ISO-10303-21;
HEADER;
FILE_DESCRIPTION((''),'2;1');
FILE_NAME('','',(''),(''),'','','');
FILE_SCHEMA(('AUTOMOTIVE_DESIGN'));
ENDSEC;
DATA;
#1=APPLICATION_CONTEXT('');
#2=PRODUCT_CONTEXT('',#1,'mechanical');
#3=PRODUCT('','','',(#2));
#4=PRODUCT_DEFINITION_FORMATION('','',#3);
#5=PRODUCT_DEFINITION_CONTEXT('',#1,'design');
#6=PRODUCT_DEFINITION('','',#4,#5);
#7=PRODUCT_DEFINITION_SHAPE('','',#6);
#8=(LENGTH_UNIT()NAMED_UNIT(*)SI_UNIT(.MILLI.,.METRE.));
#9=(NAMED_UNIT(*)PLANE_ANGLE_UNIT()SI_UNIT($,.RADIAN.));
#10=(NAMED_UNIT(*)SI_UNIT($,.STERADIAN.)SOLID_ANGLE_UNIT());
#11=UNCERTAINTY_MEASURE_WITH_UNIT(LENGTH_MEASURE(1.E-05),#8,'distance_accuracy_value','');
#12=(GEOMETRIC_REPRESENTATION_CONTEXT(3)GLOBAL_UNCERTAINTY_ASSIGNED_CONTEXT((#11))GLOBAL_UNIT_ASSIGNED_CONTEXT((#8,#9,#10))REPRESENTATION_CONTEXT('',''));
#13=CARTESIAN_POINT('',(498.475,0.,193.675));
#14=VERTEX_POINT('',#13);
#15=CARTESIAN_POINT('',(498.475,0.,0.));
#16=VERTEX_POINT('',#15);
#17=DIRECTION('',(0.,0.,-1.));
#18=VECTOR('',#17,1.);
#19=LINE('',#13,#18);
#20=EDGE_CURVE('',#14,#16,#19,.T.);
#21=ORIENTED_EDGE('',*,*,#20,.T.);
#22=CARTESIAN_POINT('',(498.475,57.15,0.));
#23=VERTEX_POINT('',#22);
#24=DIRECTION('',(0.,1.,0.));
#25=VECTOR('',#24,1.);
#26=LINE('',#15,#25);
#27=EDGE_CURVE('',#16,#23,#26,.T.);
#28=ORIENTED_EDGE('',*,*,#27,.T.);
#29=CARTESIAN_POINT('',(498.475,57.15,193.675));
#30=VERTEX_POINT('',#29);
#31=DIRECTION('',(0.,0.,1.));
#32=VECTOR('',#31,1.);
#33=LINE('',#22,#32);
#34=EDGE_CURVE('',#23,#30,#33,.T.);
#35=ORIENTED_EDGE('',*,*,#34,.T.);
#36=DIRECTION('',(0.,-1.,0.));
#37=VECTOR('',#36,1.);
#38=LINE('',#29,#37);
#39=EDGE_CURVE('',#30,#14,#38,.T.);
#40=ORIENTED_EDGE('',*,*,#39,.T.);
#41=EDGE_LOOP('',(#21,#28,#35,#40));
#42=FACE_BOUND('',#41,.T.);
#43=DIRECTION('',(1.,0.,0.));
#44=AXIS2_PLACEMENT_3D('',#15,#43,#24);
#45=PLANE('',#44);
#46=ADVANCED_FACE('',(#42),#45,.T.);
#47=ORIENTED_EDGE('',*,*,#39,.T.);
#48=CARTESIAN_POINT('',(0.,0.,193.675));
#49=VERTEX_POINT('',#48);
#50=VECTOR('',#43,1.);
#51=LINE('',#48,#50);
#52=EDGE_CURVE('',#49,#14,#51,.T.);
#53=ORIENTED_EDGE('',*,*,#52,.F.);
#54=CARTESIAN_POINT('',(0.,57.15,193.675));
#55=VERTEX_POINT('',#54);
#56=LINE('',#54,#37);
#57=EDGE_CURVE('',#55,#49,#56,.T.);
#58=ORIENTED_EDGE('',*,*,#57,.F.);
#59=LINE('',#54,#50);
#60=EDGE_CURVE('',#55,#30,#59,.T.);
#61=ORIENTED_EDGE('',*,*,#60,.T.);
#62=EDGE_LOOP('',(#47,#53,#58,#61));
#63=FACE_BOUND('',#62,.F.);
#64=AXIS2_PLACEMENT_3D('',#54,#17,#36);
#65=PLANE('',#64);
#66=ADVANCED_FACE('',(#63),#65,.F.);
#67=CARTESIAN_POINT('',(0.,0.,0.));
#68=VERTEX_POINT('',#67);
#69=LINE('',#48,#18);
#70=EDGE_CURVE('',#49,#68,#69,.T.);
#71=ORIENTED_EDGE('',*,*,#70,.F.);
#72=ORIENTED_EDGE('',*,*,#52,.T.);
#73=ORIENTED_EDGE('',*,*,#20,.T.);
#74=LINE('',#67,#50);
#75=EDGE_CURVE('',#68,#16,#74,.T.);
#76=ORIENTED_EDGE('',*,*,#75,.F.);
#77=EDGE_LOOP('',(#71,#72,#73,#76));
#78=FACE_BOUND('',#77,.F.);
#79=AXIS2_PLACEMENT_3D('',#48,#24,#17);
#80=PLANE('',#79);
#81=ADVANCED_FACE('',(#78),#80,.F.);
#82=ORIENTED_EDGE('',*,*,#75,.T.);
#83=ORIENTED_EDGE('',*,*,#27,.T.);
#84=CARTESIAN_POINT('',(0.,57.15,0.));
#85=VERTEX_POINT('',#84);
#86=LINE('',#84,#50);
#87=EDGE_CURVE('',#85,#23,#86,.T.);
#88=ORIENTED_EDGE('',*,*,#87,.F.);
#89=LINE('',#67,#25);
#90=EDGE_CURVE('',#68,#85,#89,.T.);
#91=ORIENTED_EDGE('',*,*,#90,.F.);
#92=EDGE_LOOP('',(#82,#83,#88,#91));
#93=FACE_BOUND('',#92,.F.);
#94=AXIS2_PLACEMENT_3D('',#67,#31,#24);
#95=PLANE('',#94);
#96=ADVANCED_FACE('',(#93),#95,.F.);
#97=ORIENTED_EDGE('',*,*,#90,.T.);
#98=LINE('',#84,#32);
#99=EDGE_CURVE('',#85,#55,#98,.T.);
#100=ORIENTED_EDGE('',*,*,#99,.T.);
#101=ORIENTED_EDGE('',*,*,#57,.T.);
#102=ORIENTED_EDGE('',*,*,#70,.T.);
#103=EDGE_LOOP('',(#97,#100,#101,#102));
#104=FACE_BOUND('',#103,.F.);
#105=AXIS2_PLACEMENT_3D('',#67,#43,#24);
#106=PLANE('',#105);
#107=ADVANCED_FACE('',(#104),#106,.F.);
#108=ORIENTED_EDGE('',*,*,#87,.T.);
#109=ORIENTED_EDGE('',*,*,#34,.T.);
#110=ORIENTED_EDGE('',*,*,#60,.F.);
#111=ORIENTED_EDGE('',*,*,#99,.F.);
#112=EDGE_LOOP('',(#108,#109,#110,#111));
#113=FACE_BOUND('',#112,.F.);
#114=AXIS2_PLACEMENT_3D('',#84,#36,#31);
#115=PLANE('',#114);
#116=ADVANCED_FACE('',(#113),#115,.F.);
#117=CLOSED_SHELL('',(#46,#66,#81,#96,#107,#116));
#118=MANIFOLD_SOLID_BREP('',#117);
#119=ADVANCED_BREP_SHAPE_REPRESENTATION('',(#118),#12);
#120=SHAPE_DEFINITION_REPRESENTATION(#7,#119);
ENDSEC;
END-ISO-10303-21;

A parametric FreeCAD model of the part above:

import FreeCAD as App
import Part
import Sketcher
from FreeCAD import Vector
Q = App.Units.Quantity

doc = App.newDocument("Part")
body = doc.addObject("PartDesign::Body", "Body")

# Sketch on YZ plane
sketch1 = body.newObject("Sketcher::SketchObject", "Sketch")
sketch1.AttachmentSupport = (doc.getObject("YZ_Plane"), [""])
sketch1.MapMode = "FlatFace"
sketch1.addGeometry(Part.LineSegment(Vector(0, 194, 0), Vector(0, 0, 0)), False)
sketch1.addGeometry(Part.LineSegment(Vector(0, 0, 0), Vector(57, 0, 0)), False)
sketch1.addGeometry(Part.LineSegment(Vector(57, 0, 0), Vector(57, 194, 0)), False)
sketch1.addGeometry(Part.LineSegment(Vector(57, 194, 0), Vector(0, 194, 0)), False)
sketch1.addConstraint(Sketcher.Constraint("Coincident", 0, 2, 1, 1))
sketch1.addConstraint(Sketcher.Constraint("Coincident", 1, 2, 2, 1))
sketch1.addConstraint(Sketcher.Constraint("Coincident", 2, 2, 3, 1))
sketch1.addConstraint(Sketcher.Constraint("Coincident", 3, 2, 0, 1))
sketch1.addConstraint(Sketcher.Constraint("Vertical", 0))
sketch1.addConstraint(Sketcher.Constraint("Horizontal", 1))
sketch1.addConstraint(Sketcher.Constraint("Vertical", 2))
sketch1.addConstraint(Sketcher.Constraint("Horizontal", 3))
sketch1.addConstraint(Sketcher.Constraint("Coincident", 0, 2, -1, 1))
sketch1.addConstraint(Sketcher.Constraint("DistanceX", 1, 1, 1, 2, Q("2.25 in")))
sketch1.addConstraint(Sketcher.Constraint("DistanceY", 0, 2, 0, 1, Q("7.625 in")))
pad1 = body.newObject("PartDesign::Pad", "Pad")
pad1.Profile = sketch1
pad1.Length = Q("19.625 in")

doc.recompute()
